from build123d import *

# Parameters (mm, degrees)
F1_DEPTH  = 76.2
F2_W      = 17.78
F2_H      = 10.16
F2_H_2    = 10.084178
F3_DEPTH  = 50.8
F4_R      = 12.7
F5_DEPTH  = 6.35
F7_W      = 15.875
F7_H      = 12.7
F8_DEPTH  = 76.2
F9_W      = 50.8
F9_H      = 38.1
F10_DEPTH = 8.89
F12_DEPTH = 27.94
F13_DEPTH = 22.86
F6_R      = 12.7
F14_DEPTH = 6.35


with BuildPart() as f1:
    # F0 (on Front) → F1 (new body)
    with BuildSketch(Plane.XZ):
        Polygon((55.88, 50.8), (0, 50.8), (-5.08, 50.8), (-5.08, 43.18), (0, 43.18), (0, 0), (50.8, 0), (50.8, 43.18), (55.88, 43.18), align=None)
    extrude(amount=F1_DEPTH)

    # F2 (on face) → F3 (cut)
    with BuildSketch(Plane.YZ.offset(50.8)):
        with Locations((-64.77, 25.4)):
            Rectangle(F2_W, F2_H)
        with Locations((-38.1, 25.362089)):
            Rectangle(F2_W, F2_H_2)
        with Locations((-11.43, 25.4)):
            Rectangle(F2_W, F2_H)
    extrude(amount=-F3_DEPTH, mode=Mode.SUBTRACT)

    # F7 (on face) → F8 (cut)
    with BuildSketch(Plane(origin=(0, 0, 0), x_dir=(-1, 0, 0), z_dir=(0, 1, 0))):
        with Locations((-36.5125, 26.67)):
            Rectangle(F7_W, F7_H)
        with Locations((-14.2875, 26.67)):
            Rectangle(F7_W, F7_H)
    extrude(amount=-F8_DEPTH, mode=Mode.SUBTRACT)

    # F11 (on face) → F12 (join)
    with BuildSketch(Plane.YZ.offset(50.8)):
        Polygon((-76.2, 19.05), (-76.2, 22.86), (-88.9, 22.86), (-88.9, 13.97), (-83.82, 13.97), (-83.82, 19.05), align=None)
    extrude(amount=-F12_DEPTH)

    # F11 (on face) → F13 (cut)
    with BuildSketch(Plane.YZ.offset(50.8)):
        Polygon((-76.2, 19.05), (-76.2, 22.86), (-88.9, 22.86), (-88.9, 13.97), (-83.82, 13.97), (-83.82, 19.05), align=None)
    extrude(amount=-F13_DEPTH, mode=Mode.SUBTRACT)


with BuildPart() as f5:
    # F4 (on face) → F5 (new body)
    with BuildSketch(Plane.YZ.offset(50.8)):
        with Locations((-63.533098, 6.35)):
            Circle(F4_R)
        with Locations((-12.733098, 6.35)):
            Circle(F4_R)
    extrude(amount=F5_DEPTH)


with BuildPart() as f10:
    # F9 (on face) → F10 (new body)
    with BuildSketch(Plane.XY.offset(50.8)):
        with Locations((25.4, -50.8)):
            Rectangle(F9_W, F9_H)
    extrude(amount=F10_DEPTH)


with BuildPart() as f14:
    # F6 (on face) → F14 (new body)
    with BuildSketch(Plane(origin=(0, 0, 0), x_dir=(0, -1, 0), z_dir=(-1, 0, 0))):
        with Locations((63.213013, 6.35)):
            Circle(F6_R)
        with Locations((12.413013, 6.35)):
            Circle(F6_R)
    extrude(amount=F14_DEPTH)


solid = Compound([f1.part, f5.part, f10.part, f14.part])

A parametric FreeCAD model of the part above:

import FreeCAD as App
import Part
import Sketcher

V = App.Vector
Q = App.Units.Quantity

doc = App.newDocument("Part")
body = doc.addObject("PartDesign::Body", "Body")

# Sketch on XZ plane
sketch1 = doc.addObject("Sketcher::SketchObject", "Sketch")
body.addObject(sketch1)
sketch1.AttachmentSupport = (doc.XZ_Plane, [""])
sketch1.MapMode = "FlatFace"
sketch1.addGeometry([
    Part.LineSegment(V(55.88, 50.8, 0), V(-5.08, 50.8, 0)),  # 0
    Part.LineSegment(V(-5.08, 50.8, 0), V(-5.08, 43.18, 0)),  # 1
    Part.LineSegment(V(-5.08, 43.18, 0), V(0, 43.18, 0)),  # 2
    Part.LineSegment(V(0, 43.18, 0), V(0, 0, 0)),  # 3
    Part.LineSegment(V(0, 0, 0), V(50.8, 0, 0)),  # 4
    Part.LineSegment(V(50.8, 0, 0), V(50.8, 43.18, 0)),  # 5
    Part.LineSegment(V(50.8, 43.18, 0), V(55.88, 43.18, 0)),  # 6
    Part.LineSegment(V(55.88, 43.18, 0), V(55.88, 50.8, 0)),  # 7
], False)
sketch1.addConstraint([
    Sketcher.Constraint("Coincident", 0, 2, 1, 1),
    Sketcher.Constraint("Coincident", 1, 2, 2, 1),
    Sketcher.Constraint("Coincident", 2, 2, 3, 1),
    Sketcher.Constraint("Coincident", 3, 2, 4, 1),
    Sketcher.Constraint("Coincident", 4, 2, 5, 1),
    Sketcher.Constraint("Coincident", 5, 2, 6, 1),
    Sketcher.Constraint("Coincident", 6, 2, 7, 1),
    Sketcher.Constraint("Coincident", 7, 2, 0, 1),
    Sketcher.Constraint("Horizontal", 0),
    Sketcher.Constraint("Vertical", 1),
    Sketcher.Constraint("Horizontal", 2),
    Sketcher.Constraint("Vertical", 3),
    Sketcher.Constraint("Horizontal", 4),
    Sketcher.Constraint("Vertical", 5),
    Sketcher.Constraint("Horizontal", 6),
    Sketcher.Constraint("Vertical", 7),
    Sketcher.Constraint("Coincident", 3, 2, -1, 1),
    Sketcher.Constraint("Horizontal", 2, 2, 5, 2),
    Sketcher.Constraint("Equal", 2, 6),
    Sketcher.Constraint("DistanceX", 4, 1, 4, 2, Q("2 in")),
    Sketcher.Constraint("DistanceX", 0, 2, 0, 1, Q("2.4 in")),
    Sketcher.Constraint("DistanceY", 1, 2, 1, 1, Q("0.3 in")),
    Sketcher.Constraint("DistanceY", 3, 2, 3, 1, Q("1.7 in")),
])
pad1 = doc.addObject("PartDesign::Pad", "Pad")
body.addObject(pad1)
pad1.Profile = sketch1
pad1.Length = Q("3 in")

# Sketch on YZ plane
sketch2 = doc.addObject("Sketcher::SketchObject", "Sketch001")
body.addObject(sketch2)
sketch2.AttachmentSupport = (doc.YZ_Plane, [""])
sketch2.MapMode = "FlatFace"
sketch2.AttachmentOffset = App.Placement(V(0, 0, 2 * 25.4), App.Rotation())
sketch2.addGeometry([
    Part.LineSegment(V(-73.66, 30.48, 0), V(-73.66, 20.32, 0)),  # 0
    Part.LineSegment(V(-73.66, 20.32, 0), V(-55.88, 20.32, 0)),  # 1
    Part.LineSegment(V(-55.88, 20.32, 0), V(-55.88, 30.48, 0)),  # 2
    Part.LineSegment(V(-55.88, 30.48, 0), V(-73.66, 30.48, 0)),  # 3
    Part.LineSegment(V(-46.99, 30.404178, 0), V(-46.99, 20.32, 0)),  # 4
    Part.LineSegment(V(-46.99, 20.32, 0), V(-29.21, 20.32, 0)),  # 5
    Part.LineSegment(V(-29.21, 20.32, 0), V(-29.21, 30.404178, 0)),  # 6
    Part.LineSegment(V(-29.21, 30.404178, 0), V(-46.99, 30.404178, 0)),  # 7
    Part.LineSegment(V(-20.32, 30.48, 0), V(-20.32, 20.32, 0)),  # 8
    Part.LineSegment(V(-20.32, 20.32, 0), V(-2.54, 20.32, 0)),  # 9
    Part.LineSegment(V(-2.54, 20.32, 0), V(-2.54, 30.48, 0)),  # 10
    Part.LineSegment(V(-2.54, 30.48, 0), V(-20.32, 30.48, 0)),  # 11
], False)
sketch2.addConstraint([
    Sketcher.Constraint("Coincident", 0, 2, 1, 1),
    Sketcher.Constraint("Coincident", 1, 2, 2, 1),
    Sketcher.Constraint("Coincident", 2, 2, 3, 1),
    Sketcher.Constraint("Coincident", 3, 2, 0, 1),
    Sketcher.Constraint("Coincident", 4, 2, 5, 1),
    Sketcher.Constraint("Coincident", 5, 2, 6, 1),
    Sketcher.Constraint("Coincident", 6, 2, 7, 1),
    Sketcher.Constraint("Coincident", 7, 2, 4, 1),
    Sketcher.Constraint("Coincident", 8, 2, 9, 1),
    Sketcher.Constraint("Coincident", 9, 2, 10, 1),
    Sketcher.Constraint("Coincident", 10, 2, 11, 1),
    Sketcher.Constraint("Coincident", 11, 2, 8, 1),
    Sketcher.Constraint("Vertical", 0),
    Sketcher.Constraint("Horizontal", 1),
    Sketcher.Constraint("Vertical", 2),
    Sketcher.Constraint("Horizontal", 3),
    Sketcher.Constraint("Vertical", 4),
    Sketcher.Constraint("Horizontal", 5),
    Sketcher.Constraint("Vertical", 6),
    Sketcher.Constraint("Horizontal", 7),
    Sketcher.Constraint("Vertical", 8),
    Sketcher.Constraint("Horizontal", 9),
    Sketcher.Constraint("Vertical", 10),
    Sketcher.Constraint("Horizontal", 11),
    Sketcher.Constraint("Horizontal", 1, 2, 4, 2),
    Sketcher.Constraint("Horizontal", 5, 2, 8, 2),
    Sketcher.Constraint("Horizontal", 3, 2, 10, 2),
    Sketcher.Constraint("Equal", 3, 5),
    Sketcher.Constraint("Equal", 7, 9),
    Sketcher.Constraint("DistanceX", 1, 1, 1, 2, Q("0.7 in")),
    Sketcher.Constraint("DistanceY", 0, 2, 0, 1, Q("0.4 in")),
    Sketcher.Constraint("DistanceX", 0, 2, -1, 1, Q("2.9 in")),
    Sketcher.Constraint("DistanceY", -1, 1, 0, 2, Q("0.8 in")),
    Sketcher.Constraint("DistanceX", 8, 2, -1, 1, Q("0.8 in")),
    Sketcher.Constraint("DistanceX", 4, 2, -1, 1, Q("1.85 in")),
    Sketcher.Constraint("DistanceY", 4, 2, 4, 1, Q("10.084178 mm")),
])
pocket1 = doc.addObject("PartDesign::Pocket", "Pocket")
body.addObject(pocket1)
pocket1.Profile = sketch2
pocket1.Length = Q("2 in")

# Sketch on XZ plane
sketch3 = doc.addObject("Sketcher::SketchObject", "Sketch002")
body.addObject(sketch3)
sketch3.AttachmentSupport = (doc.XZ_Plane, [""])
sketch3.MapMode = "FlatFace"
sketch3.addGeometry([
    Part.LineSegment(V(44.45, 33.02, 0), V(44.45, 20.32, 0)),  # 0
    Part.LineSegment(V(44.45, 20.32, 0), V(28.575, 20.32, 0)),  # 1
    Part.LineSegment(V(28.575, 20.32, 0), V(28.575, 33.02, 0)),  # 2
    Part.LineSegment(V(28.575, 33.02, 0), V(44.45, 33.02, 0)),  # 3
    Part.LineSegment(V(22.225, 33.02, 0), V(22.225, 20.32, 0)),  # 4
    Part.LineSegment(V(22.225, 20.32, 0), V(6.35, 20.32, 0)),  # 5
    Part.LineSegment(V(6.35, 20.32, 0), V(6.35, 33.02, 0)),  # 6
    Part.LineSegment(V(6.35, 33.02, 0), V(22.225, 33.02, 0)),  # 7
], False)
sketch3.addConstraint([
    Sketcher.Constraint("Coincident", 0, 2, 1, 1),
    Sketcher.Constraint("Coincident", 1, 2, 2, 1),
    Sketcher.Constraint("Coincident", 2, 2, 3, 1),
    Sketcher.Constraint("Coincident", 3, 2, 0, 1),
    Sketcher.Constraint("Coincident", 4, 2, 5, 1),
    Sketcher.Constraint("Coincident", 5, 2, 6, 1),
    Sketcher.Constraint("Coincident", 6, 2, 7, 1),
    Sketcher.Constraint("Coincident", 7, 2, 4, 1),
    Sketcher.Constraint("Vertical", 0),
    Sketcher.Constraint("Horizontal", 1),
    Sketcher.Constraint("Vertical", 2),
    Sketcher.Constraint("Horizontal", 3),
    Sketcher.Constraint("Vertical", 4),
    Sketcher.Constraint("Horizontal", 5),
    Sketcher.Constraint("Vertical", 6),
    Sketcher.Constraint("Horizontal", 7),
    Sketcher.Constraint("Horizontal", 1, 2, 4, 2),
    Sketcher.Constraint("Horizontal", 3, 2, 6, 2),
    Sketcher.Constraint("Equal", 3, 5),
    Sketcher.Constraint("DistanceY", 0, 2, 0, 1, Q("0.5 in")),
    Sketcher.Constraint("DistanceY", -1, 1, 0, 2, Q("0.8 in")),
    Sketcher.Constraint("DistanceX", 5, 2, 0, 2, Q("1.5 in")),
    Sketcher.Constraint("DistanceX", 1, 2, 1, 1, Q("0.625 in")),
    Sketcher.Constraint("DistanceX", -1, 1, 0, 2, Q("1.75 in")),
])
pocket2 = doc.addObject("PartDesign::Pocket", "Pocket001")
body.addObject(pocket2)
pocket2.Profile = sketch3
pocket2.Length = Q("3 in")
pocket2.Reversed = True

# Sketch on YZ plane
sketch4 = doc.addObject("Sketcher::SketchObject", "Sketch003")
body.addObject(sketch4)
sketch4.AttachmentSupport = (doc.YZ_Plane, [""])
sketch4.MapMode = "FlatFace"
sketch4.AttachmentOffset = App.Placement(V(0, 0, 2 * 25.4), App.Rotation())
sketch4.addGeometry([
    Part.LineSegment(V(-76.2, 19.05, 0), V(-76.2, 22.86, 0)),  # 0
    Part.LineSegment(V(-76.2, 22.86, 0), V(-88.9, 22.86, 0)),  # 1
    Part.LineSegment(V(-88.9, 22.86, 0), V(-88.9, 13.97, 0)),  # 2
    Part.LineSegment(V(-88.9, 13.97, 0), V(-83.82, 13.97, 0)),  # 3
    Part.LineSegment(V(-83.82, 13.97, 0), V(-83.82, 19.05, 0)),  # 4
    Part.LineSegment(V(-83.82, 19.05, 0), V(-76.2, 19.05, 0)),  # 5
], False)
sketch4.addConstraint([
    Sketcher.Constraint("Coincident", 0, 2, 1, 1),
    Sketcher.Constraint("Coincident", 1, 2, 2, 1),
    Sketcher.Constraint("Coincident", 2, 2, 3, 1),
    Sketcher.Constraint("Coincident", 3, 2, 4, 1),
    Sketcher.Constraint("Coincident", 4, 2, 5, 1),
    Sketcher.Constraint("Coincident", 5, 2, 0, 1),
    Sketcher.Constraint("Vertical", 0),
    Sketcher.Constraint("Horizontal", 1),
    Sketcher.Constraint("Vertical", 2),
    Sketcher.Constraint("Horizontal", 3),
    Sketcher.Constraint("Vertical", 4),
    Sketcher.Constraint("Horizontal", 5),
    Sketcher.Constraint("Equal", 3, 4),
    Sketcher.Constraint("DistanceX", 1, 2, 1, 1, Q("0.5 in")),
    Sketcher.Constraint("DistanceX", 3, 1, 3, 2, Q("0.2 in")),
    Sketcher.Constraint("DistanceX", 0, 2, -1, 1, Q("3 in")),
    Sketcher.Constraint("DistanceY", 0, 1, 0, 2, Q("0.15 in")),
    Sketcher.Constraint("DistanceY", -1, 1, 0, 2, Q("0.9 in")),
])
pad2 = doc.addObject("PartDesign::Pad", "Pad001")
body.addObject(pad2)
pad2.Profile = sketch4
pad2.Length = Q("1.1 in")
pad2.Reversed = True

# Sketch on YZ plane
sketch5 = doc.addObject("Sketcher::SketchObject", "Sketch004")
body.addObject(sketch5)
sketch5.AttachmentSupport = (doc.YZ_Plane, [""])
sketch5.MapMode = "FlatFace"
sketch5.AttachmentOffset = App.Placement(V(0, 0, 2 * 25.4), App.Rotation())
sketch5.addGeometry([
    Part.LineSegment(V(-76.2, 19.05, 0), V(-76.2, 22.86, 0)),  # 0
    Part.LineSegment(V(-76.2, 22.86, 0), V(-88.9, 22.86, 0)),  # 1
    Part.LineSegment(V(-88.9, 22.86, 0), V(-88.9, 13.97, 0)),  # 2
    Part.LineSegment(V(-88.9, 13.97, 0), V(-83.82, 13.97, 0)),  # 3
    Part.LineSegment(V(-83.82, 13.97, 0), V(-83.82, 19.05, 0)),  # 4
    Part.LineSegment(V(-83.82, 19.05, 0), V(-76.2, 19.05, 0)),  # 5
], False)
sketch5.addConstraint([
    Sketcher.Constraint("Coincident", 0, 2, 1, 1),
    Sketcher.Constraint("Coincident", 1, 2, 2, 1),
    Sketcher.Constraint("Coincident", 2, 2, 3, 1),
    Sketcher.Constraint("Coincident", 3, 2, 4, 1),
    Sketcher.Constraint("Coincident", 4, 2, 5, 1),
    Sketcher.Constraint("Coincident", 5, 2, 0, 1),
    Sketcher.Constraint("Vertical", 0),
    Sketcher.Constraint("Horizontal", 1),
    Sketcher.Constraint("Vertical", 2),
    Sketcher.Constraint("Horizontal", 3),
    Sketcher.Constraint("Vertical", 4),
    Sketcher.Constraint("Horizontal", 5),
    Sketcher.Constraint("Equal", 3, 4),
    Sketcher.Constraint("DistanceX", 1, 2, 1, 1, Q("0.5 in")),
    Sketcher.Constraint("DistanceX", 3, 1, 3, 2, Q("0.2 in")),
    Sketcher.Constraint("DistanceX", 0, 2, -1, 1, Q("3 in")),
    Sketcher.Constraint("DistanceY", 0, 1, 0, 2, Q("0.15 in")),
    Sketcher.Constraint("DistanceY", -1, 1, 0, 2, Q("0.9 in")),
])
pocket3 = doc.addObject("PartDesign::Pocket", "Pocket002")
body.addObject(pocket3)
pocket3.Profile = sketch5
pocket3.Length = Q("0.9 in")
body2 = doc.addObject("PartDesign::Body", "Body001")
body2.AllowCompound = True

# Sketch on YZ plane
sketch6 = doc.addObject("Sketcher::SketchObject", "Sketch005")
body2.addObject(sketch6)
sketch6.AttachmentSupport = (doc.getObject("YZ_Plane001"), [""])
sketch6.MapMode = "FlatFace"
sketch6.AttachmentOffset = App.Placement(V(0, 0, 2 * 25.4), App.Rotation())
sketch6.addGeometry([
    Part.Circle(V(-63.533098, 6.35, 0), V(0, 0, 1), 12.7),
    Part.Circle(V(-12.733098, 6.35, 0), V(0, 0, 1), 12.7),
], False)
sketch6.addConstraint([
    Sketcher.Constraint("Equal", 0, 1),
    Sketcher.Constraint("Horizontal", 0, 3, 1, 3),
    Sketcher.Constraint("Diameter", 0, Q("1 in")),
    Sketcher.Constraint("DistanceX", 0, 3, 1, 3, Q("2 in")),
    Sketcher.Constraint("DistanceY", -1, 1, 0, 3, Q("0.25 in")),
    Sketcher.Constraint("DistanceX", 0, 3, -1, 1, Q("63.533098 mm")),
])
pad3 = doc.addObject("PartDesign::Pad", "Pad002")
body2.addObject(pad3)
pad3.Profile = sketch6
pad3.Length = Q("0.25 in")
body3 = doc.addObject("PartDesign::Body", "Body002")

# Sketch on XY plane
sketch7 = doc.addObject("Sketcher::SketchObject", "Sketch006")
body3.addObject(sketch7)
sketch7.AttachmentSupport = (doc.getObject("XY_Plane002"), [""])
sketch7.MapMode = "FlatFace"
sketch7.AttachmentOffset = App.Placement(V(0, 0, 2 * 25.4), App.Rotation())
sketch7.addGeometry([
    Part.LineSegment(V(0, -31.75, 0), V(0, -69.85, 0)),
    Part.LineSegment(V(0, -69.85, 0), V(50.8, -69.85, 0)),
    Part.LineSegment(V(50.8, -69.85, 0), V(50.8, -31.75, 0)),
    Part.LineSegment(V(50.8, -31.75, 0), V(0, -31.75, 0)),
], False)
sketch7.addConstraint([
    Sketcher.Constraint("Coincident", 0, 2, 1, 1),
    Sketcher.Constraint("Coincident", 1, 2, 2, 1),
    Sketcher.Constraint("Coincident", 2, 2, 3, 1),
    Sketcher.Constraint("Coincident", 3, 2, 0, 1),
    Sketcher.Constraint("Vertical", 0),
    Sketcher.Constraint("Horizontal", 1),
    Sketcher.Constraint("Vertical", 2),
    Sketcher.Constraint("Horizontal", 3),
    Sketcher.Constraint("PointOnObject", 0, 2, -2),
    Sketcher.Constraint("DistanceX", 1, 1, 1, 2, Q("2 in")),
    Sketcher.Constraint("DistanceY", 0, 2, 0, 1, Q("1.5 in")),
    Sketcher.Constraint("DistanceY", 0, 2, -1, 1, Q("2.75 in")),
])
pad4 = doc.addObject("PartDesign::Pad", "Pad003")
body3.addObject(pad4)
pad4.Profile = sketch7
pad4.Length = Q("0.35 in")
body4 = doc.addObject("PartDesign::Body", "Body003")
body4.AllowCompound = True

# Sketch on YZ plane
sketch8 = doc.addObject("Sketcher::SketchObject", "Sketch007")
body4.addObject(sketch8)
sketch8.AttachmentSupport = (doc.getObject("YZ_Plane003"), [""])
sketch8.MapMode = "FlatFace"
sketch8.addGeometry([
    Part.Circle(V(-63.213013, 6.35, 0), V(0, 0, 1), 12.7),
    Part.Circle(V(-12.413013, 6.35, 0), V(0, 0, 1), 12.7),
], False)
sketch8.addConstraint([
    Sketcher.Constraint("Equal", 0, 1),
    Sketcher.Constraint("Horizontal", 0, 3, 1, 3),
    Sketcher.Constraint("Diameter", 0, Q("1 in")),
    Sketcher.Constraint("DistanceX", 0, 3, 1, 3, Q("2 in")),
    Sketcher.Constraint("DistanceY", -1, 1, 0, 3, Q("0.25 in")),
    Sketcher.Constraint("DistanceX", 0, 3, -1, 1, Q("63.213013 mm")),
])
pad5 = doc.addObject("PartDesign::Pad", "Pad004")
body4.addObject(pad5)
pad5.Profile = sketch8
pad5.Length = Q("0.25 in")
pad5.Reversed = True

doc.recompute()
